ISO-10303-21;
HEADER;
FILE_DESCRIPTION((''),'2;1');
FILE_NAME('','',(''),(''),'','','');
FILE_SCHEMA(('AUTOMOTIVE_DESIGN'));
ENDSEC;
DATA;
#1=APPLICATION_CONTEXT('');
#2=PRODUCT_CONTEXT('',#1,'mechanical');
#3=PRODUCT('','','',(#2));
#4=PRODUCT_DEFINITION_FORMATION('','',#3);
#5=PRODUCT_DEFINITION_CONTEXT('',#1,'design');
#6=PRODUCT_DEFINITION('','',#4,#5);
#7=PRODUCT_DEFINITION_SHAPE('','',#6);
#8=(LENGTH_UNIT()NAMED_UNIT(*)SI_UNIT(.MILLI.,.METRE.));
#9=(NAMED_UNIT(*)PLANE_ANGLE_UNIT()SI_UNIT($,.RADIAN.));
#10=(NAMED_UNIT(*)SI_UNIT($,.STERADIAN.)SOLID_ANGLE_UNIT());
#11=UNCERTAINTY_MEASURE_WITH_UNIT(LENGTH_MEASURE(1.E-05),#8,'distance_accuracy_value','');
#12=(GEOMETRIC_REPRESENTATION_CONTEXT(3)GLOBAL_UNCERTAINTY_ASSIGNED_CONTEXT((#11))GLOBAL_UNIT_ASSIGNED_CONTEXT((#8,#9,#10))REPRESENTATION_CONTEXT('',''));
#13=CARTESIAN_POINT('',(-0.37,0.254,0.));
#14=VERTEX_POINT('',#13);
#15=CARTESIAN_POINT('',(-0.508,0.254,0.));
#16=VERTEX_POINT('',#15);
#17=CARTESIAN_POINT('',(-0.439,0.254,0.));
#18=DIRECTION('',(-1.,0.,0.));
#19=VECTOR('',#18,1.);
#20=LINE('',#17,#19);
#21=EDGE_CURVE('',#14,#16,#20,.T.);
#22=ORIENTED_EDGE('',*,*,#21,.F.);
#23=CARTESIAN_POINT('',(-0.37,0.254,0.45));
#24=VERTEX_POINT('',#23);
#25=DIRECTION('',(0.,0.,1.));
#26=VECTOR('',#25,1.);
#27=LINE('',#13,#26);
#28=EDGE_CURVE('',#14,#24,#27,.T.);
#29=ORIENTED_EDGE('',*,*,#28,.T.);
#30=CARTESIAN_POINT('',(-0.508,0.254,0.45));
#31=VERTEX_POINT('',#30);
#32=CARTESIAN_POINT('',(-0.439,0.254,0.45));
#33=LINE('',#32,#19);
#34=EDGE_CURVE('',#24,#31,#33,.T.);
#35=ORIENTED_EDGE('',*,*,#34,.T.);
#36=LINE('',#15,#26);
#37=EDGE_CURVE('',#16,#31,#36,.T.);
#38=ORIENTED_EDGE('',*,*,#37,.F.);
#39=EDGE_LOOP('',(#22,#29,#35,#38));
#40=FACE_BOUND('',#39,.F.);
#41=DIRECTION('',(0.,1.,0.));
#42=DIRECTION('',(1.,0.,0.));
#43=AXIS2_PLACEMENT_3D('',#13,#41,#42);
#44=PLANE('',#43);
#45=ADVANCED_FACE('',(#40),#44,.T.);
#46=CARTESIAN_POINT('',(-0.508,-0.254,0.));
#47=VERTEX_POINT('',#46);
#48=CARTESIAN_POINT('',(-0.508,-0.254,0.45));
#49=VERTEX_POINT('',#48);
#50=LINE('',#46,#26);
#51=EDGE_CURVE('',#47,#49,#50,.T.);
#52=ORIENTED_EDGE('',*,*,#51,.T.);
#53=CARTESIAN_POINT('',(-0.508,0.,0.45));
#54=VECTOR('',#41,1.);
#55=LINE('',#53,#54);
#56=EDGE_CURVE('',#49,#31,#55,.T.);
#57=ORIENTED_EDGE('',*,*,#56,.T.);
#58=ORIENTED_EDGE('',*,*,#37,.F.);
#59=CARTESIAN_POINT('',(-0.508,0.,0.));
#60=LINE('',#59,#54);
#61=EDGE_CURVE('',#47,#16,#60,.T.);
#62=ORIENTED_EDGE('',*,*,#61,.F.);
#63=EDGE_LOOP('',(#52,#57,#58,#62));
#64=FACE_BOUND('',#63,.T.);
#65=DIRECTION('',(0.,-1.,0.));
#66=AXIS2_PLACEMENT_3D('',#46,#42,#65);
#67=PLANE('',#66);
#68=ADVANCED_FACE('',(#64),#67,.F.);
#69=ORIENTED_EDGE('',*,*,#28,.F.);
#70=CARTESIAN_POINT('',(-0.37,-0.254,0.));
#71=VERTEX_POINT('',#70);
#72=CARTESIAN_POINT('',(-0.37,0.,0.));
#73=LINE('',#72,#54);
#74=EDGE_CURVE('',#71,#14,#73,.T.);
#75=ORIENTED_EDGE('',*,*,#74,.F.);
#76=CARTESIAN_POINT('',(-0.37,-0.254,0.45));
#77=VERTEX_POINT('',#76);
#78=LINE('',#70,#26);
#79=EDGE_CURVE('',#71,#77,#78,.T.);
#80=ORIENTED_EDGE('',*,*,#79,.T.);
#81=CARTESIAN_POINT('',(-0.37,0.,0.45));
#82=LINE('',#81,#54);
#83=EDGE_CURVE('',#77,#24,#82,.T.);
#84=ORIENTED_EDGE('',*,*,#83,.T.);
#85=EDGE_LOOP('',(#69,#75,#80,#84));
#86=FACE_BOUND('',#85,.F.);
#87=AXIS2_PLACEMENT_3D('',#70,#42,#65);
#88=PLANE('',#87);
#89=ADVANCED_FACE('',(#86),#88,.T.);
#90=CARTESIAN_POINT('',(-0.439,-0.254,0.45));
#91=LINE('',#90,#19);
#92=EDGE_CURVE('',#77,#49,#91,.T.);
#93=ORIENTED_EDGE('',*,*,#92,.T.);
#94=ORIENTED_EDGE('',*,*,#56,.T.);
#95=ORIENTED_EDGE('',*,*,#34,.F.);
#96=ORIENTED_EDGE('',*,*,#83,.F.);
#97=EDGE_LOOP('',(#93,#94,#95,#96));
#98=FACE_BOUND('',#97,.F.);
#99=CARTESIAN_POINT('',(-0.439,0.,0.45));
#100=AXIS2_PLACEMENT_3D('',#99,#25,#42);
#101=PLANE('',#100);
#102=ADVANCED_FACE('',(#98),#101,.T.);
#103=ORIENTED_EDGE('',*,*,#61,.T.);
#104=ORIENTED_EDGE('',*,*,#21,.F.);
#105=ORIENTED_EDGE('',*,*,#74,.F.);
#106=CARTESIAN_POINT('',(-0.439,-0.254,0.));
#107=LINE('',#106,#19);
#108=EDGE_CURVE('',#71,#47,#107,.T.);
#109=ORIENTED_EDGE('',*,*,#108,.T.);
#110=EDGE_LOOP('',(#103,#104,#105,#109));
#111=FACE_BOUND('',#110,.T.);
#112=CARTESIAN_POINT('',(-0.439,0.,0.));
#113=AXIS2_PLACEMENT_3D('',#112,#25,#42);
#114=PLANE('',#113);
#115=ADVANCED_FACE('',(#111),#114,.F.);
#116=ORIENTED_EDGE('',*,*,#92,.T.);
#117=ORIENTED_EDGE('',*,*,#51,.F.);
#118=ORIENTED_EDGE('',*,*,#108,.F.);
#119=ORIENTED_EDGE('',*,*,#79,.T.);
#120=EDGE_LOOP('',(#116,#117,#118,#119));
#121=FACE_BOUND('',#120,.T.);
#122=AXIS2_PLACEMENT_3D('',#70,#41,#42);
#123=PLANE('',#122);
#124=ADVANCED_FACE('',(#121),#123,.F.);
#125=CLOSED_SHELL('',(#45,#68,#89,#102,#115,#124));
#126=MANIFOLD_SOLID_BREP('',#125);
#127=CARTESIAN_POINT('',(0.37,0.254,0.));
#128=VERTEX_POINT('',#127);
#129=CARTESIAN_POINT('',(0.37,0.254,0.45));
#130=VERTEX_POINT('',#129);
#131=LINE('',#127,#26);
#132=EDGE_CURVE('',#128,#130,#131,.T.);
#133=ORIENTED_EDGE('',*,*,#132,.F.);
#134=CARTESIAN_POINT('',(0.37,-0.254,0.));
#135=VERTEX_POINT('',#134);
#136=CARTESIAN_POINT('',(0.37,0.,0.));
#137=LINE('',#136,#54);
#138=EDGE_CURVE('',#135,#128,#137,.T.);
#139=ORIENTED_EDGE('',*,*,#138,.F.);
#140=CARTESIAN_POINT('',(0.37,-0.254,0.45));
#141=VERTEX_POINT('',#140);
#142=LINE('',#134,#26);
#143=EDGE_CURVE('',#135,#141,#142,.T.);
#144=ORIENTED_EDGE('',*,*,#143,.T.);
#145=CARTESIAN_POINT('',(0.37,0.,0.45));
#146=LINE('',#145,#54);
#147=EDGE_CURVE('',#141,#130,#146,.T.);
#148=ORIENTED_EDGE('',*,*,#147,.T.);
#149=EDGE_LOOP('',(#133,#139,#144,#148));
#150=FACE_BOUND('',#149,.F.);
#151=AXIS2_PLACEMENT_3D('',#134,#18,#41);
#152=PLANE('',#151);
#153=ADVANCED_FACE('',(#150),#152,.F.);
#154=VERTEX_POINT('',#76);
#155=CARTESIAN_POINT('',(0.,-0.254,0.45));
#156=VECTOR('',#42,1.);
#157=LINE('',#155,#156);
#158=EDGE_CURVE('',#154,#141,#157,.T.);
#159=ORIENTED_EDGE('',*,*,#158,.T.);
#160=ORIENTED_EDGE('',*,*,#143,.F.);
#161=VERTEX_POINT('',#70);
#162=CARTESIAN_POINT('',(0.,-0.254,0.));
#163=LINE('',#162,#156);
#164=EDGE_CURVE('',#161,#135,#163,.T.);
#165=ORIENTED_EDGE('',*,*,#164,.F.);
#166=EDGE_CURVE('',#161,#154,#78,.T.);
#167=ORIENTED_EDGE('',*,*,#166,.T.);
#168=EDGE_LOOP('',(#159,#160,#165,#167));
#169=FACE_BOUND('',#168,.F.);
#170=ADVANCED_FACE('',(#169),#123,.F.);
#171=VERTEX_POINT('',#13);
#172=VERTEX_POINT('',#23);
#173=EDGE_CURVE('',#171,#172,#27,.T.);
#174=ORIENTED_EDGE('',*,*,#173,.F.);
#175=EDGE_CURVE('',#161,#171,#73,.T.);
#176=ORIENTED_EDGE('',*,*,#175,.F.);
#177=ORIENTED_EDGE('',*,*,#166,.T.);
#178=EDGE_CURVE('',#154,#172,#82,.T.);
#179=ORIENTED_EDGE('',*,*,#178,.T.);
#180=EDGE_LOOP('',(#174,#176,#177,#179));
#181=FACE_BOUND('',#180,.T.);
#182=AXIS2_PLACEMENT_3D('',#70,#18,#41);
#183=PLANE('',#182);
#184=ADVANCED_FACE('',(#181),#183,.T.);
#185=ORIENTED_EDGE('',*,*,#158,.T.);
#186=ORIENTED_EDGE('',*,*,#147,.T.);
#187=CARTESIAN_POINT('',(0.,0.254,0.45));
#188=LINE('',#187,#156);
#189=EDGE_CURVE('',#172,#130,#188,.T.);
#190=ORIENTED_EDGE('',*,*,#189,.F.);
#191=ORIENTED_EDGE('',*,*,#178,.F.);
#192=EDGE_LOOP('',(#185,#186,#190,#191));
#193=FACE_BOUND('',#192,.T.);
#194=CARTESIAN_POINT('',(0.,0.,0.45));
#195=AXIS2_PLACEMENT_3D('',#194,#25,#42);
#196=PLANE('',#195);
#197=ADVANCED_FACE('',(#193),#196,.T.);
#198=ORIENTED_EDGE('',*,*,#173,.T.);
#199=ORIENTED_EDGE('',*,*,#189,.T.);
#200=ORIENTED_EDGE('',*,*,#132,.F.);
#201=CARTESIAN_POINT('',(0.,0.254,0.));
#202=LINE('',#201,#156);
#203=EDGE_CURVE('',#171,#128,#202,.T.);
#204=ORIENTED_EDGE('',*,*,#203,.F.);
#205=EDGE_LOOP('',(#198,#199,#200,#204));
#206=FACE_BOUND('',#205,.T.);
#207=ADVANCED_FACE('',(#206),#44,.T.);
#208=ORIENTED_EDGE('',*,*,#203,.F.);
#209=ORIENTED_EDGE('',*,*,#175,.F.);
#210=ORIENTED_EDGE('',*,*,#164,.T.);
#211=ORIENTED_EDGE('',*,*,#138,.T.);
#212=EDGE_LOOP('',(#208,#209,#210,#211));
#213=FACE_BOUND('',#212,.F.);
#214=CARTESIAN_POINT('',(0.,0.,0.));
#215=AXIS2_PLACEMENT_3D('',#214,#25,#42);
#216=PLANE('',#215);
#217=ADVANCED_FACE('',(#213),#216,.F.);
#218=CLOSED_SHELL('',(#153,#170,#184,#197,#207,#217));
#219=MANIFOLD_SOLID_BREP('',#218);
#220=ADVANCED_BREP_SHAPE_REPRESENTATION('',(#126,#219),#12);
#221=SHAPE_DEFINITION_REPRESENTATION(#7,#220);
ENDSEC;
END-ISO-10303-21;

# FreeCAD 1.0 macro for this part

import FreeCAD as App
import Part
import Sketcher
from FreeCAD import Vector
Q = App.Units.Quantity


def add_polygon(sketch, points):
    """Adds a closed chain of lines whose ends are joined by coincident constraints."""
    first, n = sketch.GeometryCount, len(points)
    for a, b in zip(points, points[1:] + points[:1]):
        sketch.addGeometry(Part.LineSegment(App.Vector(*a, 0), App.Vector(*b, 0)), False)
    for i in range(n):
        sketch.addConstraint(Sketcher.Constraint("Coincident", first + i, 2, first + (i + 1) % n, 1))

doc = App.newDocument("Part")
body = doc.addObject("PartDesign::Body", "Body")

sketch1 = body.newObject("Sketcher::SketchObject", "Sketch")
sketch1.AttachmentSupport = (doc.getObject("XY_Plane"), [""])
sketch1.MapMode = "FlatFace"
add_polygon(sketch1, [(-0.4, 0.3), (-0.4, -0.3), (0.4, -0.3), (0.4, 0.3)])
sketch1.addConstraint([
    Sketcher.Constraint("Vertical", 0),
    Sketcher.Constraint("Horizontal", 1),
    Sketcher.Constraint("Vertical", 2),
    Sketcher.Constraint("Horizontal", 3),
    Sketcher.Constraint("Symmetric", 0, 2, 2, 2, -1, 1),
    Sketcher.Constraint("DistanceY", 0, 2, 0, 1, Q("0.02 in")),
    Sketcher.Constraint("DistanceX", 1, 1, 1, 2, 0.74),
])
pad1 = body.newObject("PartDesign::Pad", "Pad")
pad1.Profile = sketch1
pad1.Length = 0.45
body2 = doc.addObject("PartDesign::Body", "Body001")

sketch2 = body2.newObject("Sketcher::SketchObject", "Sketch001")
sketch2.AttachmentSupport = (doc.getObject("XY_Plane001"), [""])
sketch2.MapMode = "FlatFace"
add_polygon(sketch2, [(0.37, 0.25), (0.37, -0.25), (0.51, -0.25), (0.51, 0.25)])
sketch2.addConstraint([
    Sketcher.Constraint("Vertical", 0),
    Sketcher.Constraint("Horizontal", 1),
    Sketcher.Constraint("Vertical", 2),
    Sketcher.Constraint("Horizontal", 3),
    Sketcher.Constraint("DistanceY", 0, 2, 0, 1, Q("0.02 in")),
    Sketcher.Constraint("DistanceY", 0, 2, -1, 1, Q("0.01 in")),
    Sketcher.Constraint("DistanceX", -1, 1, 1, 2, Q("0.02 in")),
    Sketcher.Constraint("DistanceX", 1, 1, 1, 2, 0.138),
])
pad2 = body2.newObject("PartDesign::Pad", "Pad001")
pad2.Profile = sketch2
pad2.Length = 0.45
body3 = doc.addObject("PartDesign::Body", "Body002")
doc.recompute()

mirroring = doc.addObject("Part::Mirroring", "Mirroring")
mirroring.Source = body2
mirroring.Base = Vector(0, 0, 0)
mirroring.Normal = Vector(1, 0, 0)
body3.BaseFeature = mirroring
doc.recompute()
body2.Visibility = False
mirroring.Visibility = False

doc.recompute()
